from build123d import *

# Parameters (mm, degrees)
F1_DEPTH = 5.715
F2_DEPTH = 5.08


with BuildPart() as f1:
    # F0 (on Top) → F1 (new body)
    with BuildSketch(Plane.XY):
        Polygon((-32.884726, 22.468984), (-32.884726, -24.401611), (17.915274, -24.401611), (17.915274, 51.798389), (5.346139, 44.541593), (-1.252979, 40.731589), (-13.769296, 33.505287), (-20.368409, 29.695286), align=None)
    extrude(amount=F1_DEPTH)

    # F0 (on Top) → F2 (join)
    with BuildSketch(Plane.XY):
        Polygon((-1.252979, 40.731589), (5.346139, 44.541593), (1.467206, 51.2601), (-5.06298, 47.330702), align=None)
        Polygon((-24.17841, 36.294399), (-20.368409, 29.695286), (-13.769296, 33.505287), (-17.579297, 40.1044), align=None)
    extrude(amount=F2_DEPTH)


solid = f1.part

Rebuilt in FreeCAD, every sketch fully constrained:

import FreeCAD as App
import Part
import Sketcher
from FreeCAD import Vector
Q = App.Units.Quantity

doc = App.newDocument("Part")
params = doc.addObject("Spreadsheet::Sheet", "Params")
for row, (alias, value) in enumerate([
    ("sketch1_width", "2 in"),
    ("sketch1_height", "3 in"),
    ("sketch1_length", "0.3 in"),
    ("sketch1_length2", "0.569 in"),
    ("pad1_length", "0.225 in"),
    ("sketch2_length", "0.3 in"),
    ("pad2_length", "0.2 in"),
], start=1):
    params.set(f"A{row}", alias)
    params.set(f"B{row}", "=" + value)
    params.setAlias(f"B{row}", alias)

body = doc.addObject("PartDesign::Body", "Body")

# Sketch on XY plane
sketch1 = body.newObject("Sketcher::SketchObject", "Sketch")
sketch1.AttachmentSupport = (doc.getObject("XY_Plane"), [""])
sketch1.MapMode = "FlatFace"
sketch1.addGeometry(Part.LineSegment(Vector(-33, 22, 0), Vector(-33, -24, 0)), False)
sketch1.addGeometry(Part.LineSegment(Vector(-33, -24, 0), Vector(18, -24, 0)), False)
sketch1.addGeometry(Part.LineSegment(Vector(18, -24, 0), Vector(18, 52, 0)), False)
sketch1.addGeometry(Part.LineSegment(Vector(18, 52, 0), Vector(5, 45, 0)), False)
sketch1.addGeometry(Part.LineSegment(Vector(5, 45, 0), Vector(-1, 41, 0)), False)
sketch1.addGeometry(Part.LineSegment(Vector(-1, 41, 0), Vector(-14, 34, 0)), False)
sketch1.addGeometry(Part.LineSegment(Vector(-14, 34, 0), Vector(-20, 30, 0)), False)
sketch1.addGeometry(Part.LineSegment(Vector(-20, 30, 0), Vector(-33, 22, 0)), False)
sketch1.addConstraint(Sketcher.Constraint("Coincident", 0, 2, 1, 1))
sketch1.addConstraint(Sketcher.Constraint("Coincident", 1, 2, 2, 1))
sketch1.addConstraint(Sketcher.Constraint("Coincident", 2, 2, 3, 1))
sketch1.addConstraint(Sketcher.Constraint("Coincident", 3, 2, 4, 1))
sketch1.addConstraint(Sketcher.Constraint("Coincident", 4, 2, 5, 1))
sketch1.addConstraint(Sketcher.Constraint("Coincident", 5, 2, 6, 1))
sketch1.addConstraint(Sketcher.Constraint("Coincident", 6, 2, 7, 1))
sketch1.addConstraint(Sketcher.Constraint("Coincident", 7, 2, 0, 1))
sketch1.addConstraint(Sketcher.Constraint("Vertical", 0))
sketch1.addConstraint(Sketcher.Constraint("Horizontal", 1))
sketch1.addConstraint(Sketcher.Constraint("Vertical", 2))
sketch1.addConstraint(Sketcher.Constraint("Parallel", 3, 4))
sketch1.addConstraint(Sketcher.Constraint("Parallel", 4, 5))
sketch1.addConstraint(Sketcher.Constraint("Parallel", 5, 6))
sketch1.addConstraint(Sketcher.Constraint("Parallel", 6, 7))
sketch1.addConstraint(Sketcher.Constraint("Equal", 5, 7))
sketch1.addConstraint(Sketcher.Constraint("DistanceX", 1, 1, 1, 2, Q("2 in")))
sketch1.addConstraint(Sketcher.Constraint("DistanceY", 2, 1, 2, 2, Q("3 in")))
sketch1.addConstraint(Sketcher.Constraint("Angle", 3, Q("-149.999991 deg")))
sketch1.addConstraint(Sketcher.Constraint("Distance", 6, Q("0.3 in")))
sketch1.addConstraint(Sketcher.Constraint("DistanceY", 4, 2, 3, 2, Q("0.1500002 in")))
sketch1.addConstraint(Sketcher.Constraint("Distance", 5, Q("0.569 in")))
sketch1.addConstraint(Sketcher.Constraint("DistanceY", 0, 2, -1, 1, 24.401611))
sketch1.addConstraint(Sketcher.Constraint("DistanceX", -1, 1, 3, 2, 5.346139))
sketch1.setExpression("Constraints[16]", "Params.sketch1_width")
sketch1.setExpression("Constraints[17]", "Params.sketch1_height")
sketch1.setExpression("Constraints[19]", "Params.sketch1_length")
sketch1.setExpression("Constraints[21]", "Params.sketch1_length2")
pad1 = body.newObject("PartDesign::Pad", "Pad")
pad1.Profile = sketch1
pad1.setExpression("Length", "Params.pad1_length")

# Sketch on XY plane
sketch2 = body.newObject("Sketcher::SketchObject", "Sketch001")
sketch2.AttachmentSupport = (doc.getObject("XY_Plane"), [""])
sketch2.MapMode = "FlatFace"
sketch2.addGeometry(Part.LineSegment(Vector(-1, 41, 0), Vector(5, 45, 0)), False)
sketch2.addGeometry(Part.LineSegment(Vector(5, 45, 0), Vector(1, 51, 0)), False)
sketch2.addGeometry(Part.LineSegment(Vector(1, 51, 0), Vector(-5, 47, 0)), False)
sketch2.addGeometry(Part.LineSegment(Vector(-5, 47, 0), Vector(-1, 41, 0)), False)
sketch2.addGeometry(Part.LineSegment(Vector(-24, 36, 0), Vector(-20, 30, 0)), False)
sketch2.addGeometry(Part.LineSegment(Vector(-20, 30, 0), Vector(-14, 34, 0)), False)
sketch2.addGeometry(Part.LineSegment(Vector(-14, 34, 0), Vector(-18, 40, 0)), False)
sketch2.addGeometry(Part.LineSegment(Vector(-18, 40, 0), Vector(-24, 36, 0)), False)
sketch2.addConstraint(Sketcher.Constraint("Coincident", 0, 2, 1, 1))
sketch2.addConstraint(Sketcher.Constraint("Coincident", 1, 2, 2, 1))
sketch2.addConstraint(Sketcher.Constraint("Coincident", 2, 2, 3, 1))
sketch2.addConstraint(Sketcher.Constraint("Coincident", 3, 2, 0, 1))
sketch2.addConstraint(Sketcher.Constraint("Coincident", 4, 2, 5, 1))
sketch2.addConstraint(Sketcher.Constraint("Coincident", 5, 2, 6, 1))
sketch2.addConstraint(Sketcher.Constraint("Coincident", 6, 2, 7, 1))
sketch2.addConstraint(Sketcher.Constraint("Coincident", 7, 2, 4, 1))
sketch2.addConstraint(Sketcher.Constraint("Perpendicular", 0, 1))
sketch2.addConstraint(Sketcher.Constraint("Parallel", 1, 3))
sketch2.addConstraint(Sketcher.Constraint("Parallel", 3, 4))
sketch2.addConstraint(Sketcher.Constraint("Perpendicular", 4, 5))
sketch2.addConstraint(Sketcher.Constraint("Perpendicular", 5, 6))
sketch2.addConstraint(Sketcher.Constraint("Perpendicular", 6, 7))
sketch2.addConstraint(Sketcher.Constraint("Equal", 3, 4))
sketch2.addConstraint(Sketcher.Constraint("Equal", 4, 5))
sketch2.addConstraint(Sketcher.Constraint("Angle", 0, Q("30.000009 deg")))
sketch2.addConstraint(Sketcher.Constraint("Distance", 3, Q("0.3 in")))
sketch2.addConstraint(Sketcher.Constraint("DistanceY", 3, 2, 0, 2, Q("0.1500002 in")))
sketch2.addConstraint(Sketcher.Constraint("DistanceY", 4, 2, 3, 2, Q("0.4345001 in")))
sketch2.addConstraint(Sketcher.Constraint("DistanceY", -1, 1, 1, 2, 51.2601))
sketch2.addConstraint(Sketcher.Constraint("DistanceY", -1, 1, 6, 2, 40.1044))
sketch2.addConstraint(Sketcher.Constraint("DistanceX", -1, 1, 0, 2, 5.346139))
sketch2.addConstraint(Sketcher.Constraint("DistanceX", 4, 2, -1, 1, 20.368409))
sketch2.setExpression("Constraints[17]", "Params.sketch2_length")
pad2 = body.newObject("PartDesign::Pad", "Pad001")
pad2.Profile = sketch2
pad2.setExpression("Length", "Params.pad2_length")

doc.recompute()
